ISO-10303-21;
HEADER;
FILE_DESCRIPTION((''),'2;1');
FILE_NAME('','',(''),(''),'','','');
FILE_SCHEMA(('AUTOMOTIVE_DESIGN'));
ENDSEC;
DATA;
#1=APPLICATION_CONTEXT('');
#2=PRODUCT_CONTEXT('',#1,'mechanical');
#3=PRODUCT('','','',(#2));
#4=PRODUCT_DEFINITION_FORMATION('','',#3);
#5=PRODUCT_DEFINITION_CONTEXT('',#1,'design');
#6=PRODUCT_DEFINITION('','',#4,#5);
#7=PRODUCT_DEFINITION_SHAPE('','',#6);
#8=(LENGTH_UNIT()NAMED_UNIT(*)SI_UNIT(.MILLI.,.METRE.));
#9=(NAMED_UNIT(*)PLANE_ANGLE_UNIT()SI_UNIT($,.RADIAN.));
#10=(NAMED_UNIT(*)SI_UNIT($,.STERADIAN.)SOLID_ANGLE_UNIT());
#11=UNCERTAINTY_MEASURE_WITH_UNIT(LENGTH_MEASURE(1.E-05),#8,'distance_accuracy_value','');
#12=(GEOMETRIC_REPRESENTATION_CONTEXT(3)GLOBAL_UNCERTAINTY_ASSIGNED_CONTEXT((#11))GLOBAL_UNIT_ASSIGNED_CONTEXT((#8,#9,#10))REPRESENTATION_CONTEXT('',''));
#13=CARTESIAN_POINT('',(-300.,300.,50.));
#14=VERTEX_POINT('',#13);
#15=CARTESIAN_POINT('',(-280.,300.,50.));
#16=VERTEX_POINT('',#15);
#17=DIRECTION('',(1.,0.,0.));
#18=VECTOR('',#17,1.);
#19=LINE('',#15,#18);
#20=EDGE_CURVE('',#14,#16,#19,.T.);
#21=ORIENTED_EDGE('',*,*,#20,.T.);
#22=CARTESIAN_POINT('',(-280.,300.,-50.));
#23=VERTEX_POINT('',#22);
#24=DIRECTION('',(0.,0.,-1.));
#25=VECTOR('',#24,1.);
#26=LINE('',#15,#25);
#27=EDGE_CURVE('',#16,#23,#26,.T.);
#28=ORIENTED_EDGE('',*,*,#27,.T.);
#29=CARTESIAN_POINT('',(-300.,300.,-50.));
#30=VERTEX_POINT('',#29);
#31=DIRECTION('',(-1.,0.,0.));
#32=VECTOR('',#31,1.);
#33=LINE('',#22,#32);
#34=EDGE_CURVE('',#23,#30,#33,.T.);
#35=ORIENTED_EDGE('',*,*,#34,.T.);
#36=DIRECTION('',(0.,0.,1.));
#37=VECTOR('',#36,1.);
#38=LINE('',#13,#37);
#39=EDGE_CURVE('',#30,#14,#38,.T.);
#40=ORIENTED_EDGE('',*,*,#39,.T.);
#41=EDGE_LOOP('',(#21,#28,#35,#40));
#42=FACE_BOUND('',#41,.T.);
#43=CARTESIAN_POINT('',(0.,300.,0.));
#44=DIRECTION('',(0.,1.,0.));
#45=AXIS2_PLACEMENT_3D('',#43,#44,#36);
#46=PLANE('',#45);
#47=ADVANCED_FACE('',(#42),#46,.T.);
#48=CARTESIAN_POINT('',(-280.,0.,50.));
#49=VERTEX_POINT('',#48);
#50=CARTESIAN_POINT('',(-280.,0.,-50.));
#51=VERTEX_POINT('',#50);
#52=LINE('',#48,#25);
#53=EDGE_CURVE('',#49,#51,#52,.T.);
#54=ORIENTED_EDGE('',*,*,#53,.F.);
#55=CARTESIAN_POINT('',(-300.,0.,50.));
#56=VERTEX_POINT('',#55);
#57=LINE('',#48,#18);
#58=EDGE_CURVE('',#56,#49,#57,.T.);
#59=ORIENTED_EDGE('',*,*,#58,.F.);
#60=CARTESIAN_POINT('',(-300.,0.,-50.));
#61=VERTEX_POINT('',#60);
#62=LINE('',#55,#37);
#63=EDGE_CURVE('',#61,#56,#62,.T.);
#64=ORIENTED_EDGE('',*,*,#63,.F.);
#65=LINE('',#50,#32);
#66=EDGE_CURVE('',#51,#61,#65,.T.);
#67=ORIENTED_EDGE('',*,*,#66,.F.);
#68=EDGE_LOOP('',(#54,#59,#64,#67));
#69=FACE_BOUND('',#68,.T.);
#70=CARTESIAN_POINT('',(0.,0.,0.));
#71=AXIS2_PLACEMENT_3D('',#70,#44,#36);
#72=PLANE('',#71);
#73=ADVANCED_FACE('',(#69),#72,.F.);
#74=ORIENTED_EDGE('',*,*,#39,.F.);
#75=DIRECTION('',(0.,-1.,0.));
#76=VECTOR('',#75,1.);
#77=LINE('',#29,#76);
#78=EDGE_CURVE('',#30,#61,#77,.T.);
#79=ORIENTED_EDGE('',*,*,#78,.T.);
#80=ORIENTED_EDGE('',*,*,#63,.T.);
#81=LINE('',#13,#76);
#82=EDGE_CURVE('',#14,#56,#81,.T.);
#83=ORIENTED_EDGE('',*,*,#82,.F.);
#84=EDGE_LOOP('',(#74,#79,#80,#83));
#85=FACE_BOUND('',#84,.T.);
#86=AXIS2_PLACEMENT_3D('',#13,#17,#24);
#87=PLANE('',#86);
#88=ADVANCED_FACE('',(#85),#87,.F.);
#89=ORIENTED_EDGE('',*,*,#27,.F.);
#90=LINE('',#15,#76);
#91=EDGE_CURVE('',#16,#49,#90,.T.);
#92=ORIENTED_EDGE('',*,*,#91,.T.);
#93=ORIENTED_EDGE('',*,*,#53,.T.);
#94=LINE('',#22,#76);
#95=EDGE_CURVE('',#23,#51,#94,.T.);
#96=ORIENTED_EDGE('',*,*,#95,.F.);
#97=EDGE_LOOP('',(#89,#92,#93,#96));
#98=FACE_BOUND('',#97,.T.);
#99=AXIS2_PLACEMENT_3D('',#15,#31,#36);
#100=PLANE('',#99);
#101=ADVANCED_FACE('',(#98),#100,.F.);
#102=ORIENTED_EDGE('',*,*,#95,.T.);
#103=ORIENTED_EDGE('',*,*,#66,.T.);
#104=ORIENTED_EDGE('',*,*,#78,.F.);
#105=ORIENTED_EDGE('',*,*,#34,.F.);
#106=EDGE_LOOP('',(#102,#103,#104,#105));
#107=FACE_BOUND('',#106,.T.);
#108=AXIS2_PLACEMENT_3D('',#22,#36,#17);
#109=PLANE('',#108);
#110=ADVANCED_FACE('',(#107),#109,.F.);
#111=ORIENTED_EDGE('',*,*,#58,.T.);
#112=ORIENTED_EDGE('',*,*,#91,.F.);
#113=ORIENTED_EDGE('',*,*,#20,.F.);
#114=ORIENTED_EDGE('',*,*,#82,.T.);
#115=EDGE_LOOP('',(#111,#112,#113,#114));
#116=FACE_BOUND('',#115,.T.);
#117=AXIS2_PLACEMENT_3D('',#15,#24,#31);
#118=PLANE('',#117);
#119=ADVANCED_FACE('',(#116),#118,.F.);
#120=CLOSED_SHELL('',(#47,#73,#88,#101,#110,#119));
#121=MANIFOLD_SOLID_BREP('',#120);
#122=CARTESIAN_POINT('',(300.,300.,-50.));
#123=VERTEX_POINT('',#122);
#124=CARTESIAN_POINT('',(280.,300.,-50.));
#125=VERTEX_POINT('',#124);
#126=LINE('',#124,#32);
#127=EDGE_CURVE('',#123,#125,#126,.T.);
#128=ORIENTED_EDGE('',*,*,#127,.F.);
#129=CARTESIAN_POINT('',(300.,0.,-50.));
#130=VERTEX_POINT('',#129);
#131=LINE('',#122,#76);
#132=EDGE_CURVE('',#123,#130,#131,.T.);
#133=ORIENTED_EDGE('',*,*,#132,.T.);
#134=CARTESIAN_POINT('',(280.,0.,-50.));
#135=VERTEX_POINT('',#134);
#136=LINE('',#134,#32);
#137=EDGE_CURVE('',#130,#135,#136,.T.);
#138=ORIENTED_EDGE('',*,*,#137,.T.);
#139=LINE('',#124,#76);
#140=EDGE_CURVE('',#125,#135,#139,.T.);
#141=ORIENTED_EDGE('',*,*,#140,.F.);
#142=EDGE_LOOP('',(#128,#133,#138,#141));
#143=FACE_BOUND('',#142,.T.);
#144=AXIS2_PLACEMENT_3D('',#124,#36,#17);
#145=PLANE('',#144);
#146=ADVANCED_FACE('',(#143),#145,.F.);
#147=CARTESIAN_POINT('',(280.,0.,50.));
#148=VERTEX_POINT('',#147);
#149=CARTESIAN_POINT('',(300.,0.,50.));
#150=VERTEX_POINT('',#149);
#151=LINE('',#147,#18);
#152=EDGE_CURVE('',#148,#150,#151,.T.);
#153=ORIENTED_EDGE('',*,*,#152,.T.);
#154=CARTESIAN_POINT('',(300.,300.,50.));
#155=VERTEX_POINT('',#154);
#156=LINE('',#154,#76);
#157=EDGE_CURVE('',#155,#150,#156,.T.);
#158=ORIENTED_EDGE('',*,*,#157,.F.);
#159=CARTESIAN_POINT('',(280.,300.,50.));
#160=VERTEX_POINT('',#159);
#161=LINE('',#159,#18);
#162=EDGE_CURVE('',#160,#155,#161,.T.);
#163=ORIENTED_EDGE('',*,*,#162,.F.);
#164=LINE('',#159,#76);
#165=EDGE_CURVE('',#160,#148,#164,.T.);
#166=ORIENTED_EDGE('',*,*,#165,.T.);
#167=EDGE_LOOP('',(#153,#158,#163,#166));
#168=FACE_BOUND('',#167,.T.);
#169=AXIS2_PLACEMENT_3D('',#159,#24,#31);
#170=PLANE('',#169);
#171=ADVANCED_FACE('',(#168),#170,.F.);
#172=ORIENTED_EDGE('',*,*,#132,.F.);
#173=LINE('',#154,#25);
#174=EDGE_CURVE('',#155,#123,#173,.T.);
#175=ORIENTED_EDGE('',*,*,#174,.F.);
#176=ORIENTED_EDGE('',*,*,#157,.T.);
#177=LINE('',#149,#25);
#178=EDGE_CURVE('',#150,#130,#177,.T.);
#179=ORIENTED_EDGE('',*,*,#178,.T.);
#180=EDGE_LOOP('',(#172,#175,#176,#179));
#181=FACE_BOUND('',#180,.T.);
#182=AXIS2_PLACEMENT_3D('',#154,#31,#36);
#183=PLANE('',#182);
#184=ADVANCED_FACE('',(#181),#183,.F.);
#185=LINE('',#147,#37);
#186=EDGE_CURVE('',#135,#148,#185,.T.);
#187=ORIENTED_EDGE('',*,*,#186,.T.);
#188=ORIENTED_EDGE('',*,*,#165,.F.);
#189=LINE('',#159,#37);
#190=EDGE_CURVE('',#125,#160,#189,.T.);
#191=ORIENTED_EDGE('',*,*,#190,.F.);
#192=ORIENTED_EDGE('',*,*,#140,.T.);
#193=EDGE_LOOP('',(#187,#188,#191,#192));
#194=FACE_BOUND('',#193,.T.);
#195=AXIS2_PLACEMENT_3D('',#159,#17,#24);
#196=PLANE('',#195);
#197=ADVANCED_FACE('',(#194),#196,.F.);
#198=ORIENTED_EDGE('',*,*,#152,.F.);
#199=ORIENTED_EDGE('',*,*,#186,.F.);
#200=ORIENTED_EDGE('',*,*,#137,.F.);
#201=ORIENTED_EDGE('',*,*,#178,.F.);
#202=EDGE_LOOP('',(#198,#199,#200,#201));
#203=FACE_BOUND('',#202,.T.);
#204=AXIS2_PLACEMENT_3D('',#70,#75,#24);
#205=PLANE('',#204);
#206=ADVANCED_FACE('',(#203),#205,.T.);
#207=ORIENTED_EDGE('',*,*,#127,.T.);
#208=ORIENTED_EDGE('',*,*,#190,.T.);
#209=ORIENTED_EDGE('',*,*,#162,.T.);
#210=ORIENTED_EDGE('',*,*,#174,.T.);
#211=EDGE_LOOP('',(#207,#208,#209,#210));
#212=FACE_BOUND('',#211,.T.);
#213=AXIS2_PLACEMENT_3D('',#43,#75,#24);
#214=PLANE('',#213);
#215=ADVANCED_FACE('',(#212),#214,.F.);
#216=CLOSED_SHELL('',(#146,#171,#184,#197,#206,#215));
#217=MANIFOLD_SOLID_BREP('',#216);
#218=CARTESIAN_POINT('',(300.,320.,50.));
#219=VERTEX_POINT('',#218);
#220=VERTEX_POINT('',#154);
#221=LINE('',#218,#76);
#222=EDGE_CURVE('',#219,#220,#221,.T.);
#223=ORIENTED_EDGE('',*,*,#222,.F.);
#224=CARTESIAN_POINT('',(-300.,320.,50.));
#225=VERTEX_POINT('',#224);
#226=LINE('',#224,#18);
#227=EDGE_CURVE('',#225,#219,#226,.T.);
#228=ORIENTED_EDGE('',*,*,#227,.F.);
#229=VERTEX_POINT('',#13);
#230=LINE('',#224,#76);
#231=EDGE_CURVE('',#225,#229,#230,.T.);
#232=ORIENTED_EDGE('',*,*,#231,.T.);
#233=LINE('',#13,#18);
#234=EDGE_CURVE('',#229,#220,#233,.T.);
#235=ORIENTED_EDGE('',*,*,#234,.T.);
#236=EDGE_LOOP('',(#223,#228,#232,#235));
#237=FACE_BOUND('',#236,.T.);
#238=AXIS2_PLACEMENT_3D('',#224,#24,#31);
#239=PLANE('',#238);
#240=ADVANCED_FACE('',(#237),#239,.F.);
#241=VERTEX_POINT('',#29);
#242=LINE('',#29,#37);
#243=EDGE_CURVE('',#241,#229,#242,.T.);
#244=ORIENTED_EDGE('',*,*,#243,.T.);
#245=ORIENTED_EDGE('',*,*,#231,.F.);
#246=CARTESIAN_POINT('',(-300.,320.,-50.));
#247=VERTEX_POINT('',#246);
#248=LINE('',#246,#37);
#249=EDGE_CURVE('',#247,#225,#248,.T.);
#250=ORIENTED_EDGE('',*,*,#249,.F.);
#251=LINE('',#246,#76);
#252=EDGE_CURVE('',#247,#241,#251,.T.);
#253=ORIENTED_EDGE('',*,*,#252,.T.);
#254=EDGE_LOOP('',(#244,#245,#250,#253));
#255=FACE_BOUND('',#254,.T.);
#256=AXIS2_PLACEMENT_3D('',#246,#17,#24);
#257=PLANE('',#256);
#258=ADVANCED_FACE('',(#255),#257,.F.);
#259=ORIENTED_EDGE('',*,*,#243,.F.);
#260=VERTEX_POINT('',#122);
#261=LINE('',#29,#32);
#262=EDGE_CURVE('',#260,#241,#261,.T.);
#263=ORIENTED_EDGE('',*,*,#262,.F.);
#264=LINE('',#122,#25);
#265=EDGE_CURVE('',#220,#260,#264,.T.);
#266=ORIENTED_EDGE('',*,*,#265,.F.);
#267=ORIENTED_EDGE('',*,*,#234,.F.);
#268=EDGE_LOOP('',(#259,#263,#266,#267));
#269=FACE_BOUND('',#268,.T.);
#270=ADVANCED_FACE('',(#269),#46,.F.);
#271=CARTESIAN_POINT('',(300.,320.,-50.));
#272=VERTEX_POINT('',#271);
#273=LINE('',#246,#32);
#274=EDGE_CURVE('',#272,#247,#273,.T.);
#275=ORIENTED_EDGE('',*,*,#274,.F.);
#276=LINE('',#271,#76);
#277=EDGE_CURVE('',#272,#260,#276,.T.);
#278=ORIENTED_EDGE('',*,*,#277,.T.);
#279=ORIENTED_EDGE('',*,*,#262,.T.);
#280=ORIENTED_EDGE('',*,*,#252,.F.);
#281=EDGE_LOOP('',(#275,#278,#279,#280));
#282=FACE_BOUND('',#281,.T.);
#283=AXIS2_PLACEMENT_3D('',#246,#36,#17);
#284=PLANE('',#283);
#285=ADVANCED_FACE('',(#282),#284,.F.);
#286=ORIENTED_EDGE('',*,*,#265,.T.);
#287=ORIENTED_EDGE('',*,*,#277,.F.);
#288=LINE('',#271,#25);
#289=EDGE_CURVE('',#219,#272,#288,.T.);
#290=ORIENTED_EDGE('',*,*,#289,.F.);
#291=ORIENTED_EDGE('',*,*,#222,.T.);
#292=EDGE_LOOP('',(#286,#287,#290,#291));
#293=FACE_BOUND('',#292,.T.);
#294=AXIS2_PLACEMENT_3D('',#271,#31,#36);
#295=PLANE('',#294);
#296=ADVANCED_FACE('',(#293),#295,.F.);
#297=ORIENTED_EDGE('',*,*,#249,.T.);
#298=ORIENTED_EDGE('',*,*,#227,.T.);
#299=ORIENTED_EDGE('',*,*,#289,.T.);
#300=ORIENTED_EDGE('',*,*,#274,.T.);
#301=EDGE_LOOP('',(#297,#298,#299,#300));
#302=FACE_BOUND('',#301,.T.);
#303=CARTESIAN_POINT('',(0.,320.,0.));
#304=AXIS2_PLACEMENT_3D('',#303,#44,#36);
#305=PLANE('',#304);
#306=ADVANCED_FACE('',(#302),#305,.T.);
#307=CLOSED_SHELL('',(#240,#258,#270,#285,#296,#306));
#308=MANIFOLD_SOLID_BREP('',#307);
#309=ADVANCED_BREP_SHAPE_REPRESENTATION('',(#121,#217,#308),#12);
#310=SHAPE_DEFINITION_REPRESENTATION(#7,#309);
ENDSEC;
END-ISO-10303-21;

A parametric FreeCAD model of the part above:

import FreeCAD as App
import Part
import Sketcher

V = App.Vector

doc = App.newDocument("Part")
body = doc.addObject("PartDesign::Body", "Body")

sketch1 = doc.addObject("Sketcher::SketchObject", "Sketch")
body.addObject(sketch1)
sketch1.AttachmentSupport = (doc.XZ_Plane, [""])
sketch1.MapMode = "FlatFace"
sketch1.addGeometry([
    Part.LineSegment(V(-300, -50, 0), V(-300, 50, 0)),
    Part.LineSegment(V(-300, 50, 0), V(-280, 50, 0)),
    Part.LineSegment(V(-280, 50, 0), V(-280, -50, 0)),
    Part.LineSegment(V(-280, -50, 0), V(-300, -50, 0)),
], False)
sketch1.addConstraint([
    Sketcher.Constraint("Coincident", 0, 2, 1, 1),
    Sketcher.Constraint("Coincident", 1, 2, 2, 1),
    Sketcher.Constraint("Coincident", 2, 2, 3, 1),
    Sketcher.Constraint("Coincident", 3, 2, 0, 1),
    Sketcher.Constraint("Vertical", 0),
    Sketcher.Constraint("Horizontal", 1),
    Sketcher.Constraint("Vertical", 2),
    Sketcher.Constraint("Horizontal", 3),
    Sketcher.Constraint("DistanceX", 1, 1, 1, 2, 20.0),
    Sketcher.Constraint("DistanceY", 0, 1, 0, 2, 100.0),
    Sketcher.Constraint("DistanceX", 0, 2, -1, 1, 300.0),
    Sketcher.Constraint("DistanceY", -1, 1, 0, 2, 50.0),
])
pad1 = doc.addObject("PartDesign::Pad", "Pad")
body.addObject(pad1)
pad1.Profile = sketch1
pad1.Length = 300
pad1.Reversed = True
body2 = doc.addObject("PartDesign::Body", "Body001")

sketch2 = doc.addObject("Sketcher::SketchObject", "Sketch001")
body2.addObject(sketch2)
sketch2.AttachmentSupport = (doc.getObject("XZ_Plane001"), [""])
sketch2.MapMode = "FlatFace"
sketch2.addGeometry([
    Part.LineSegment(V(280, -50, 0), V(280, 50, 0)),
    Part.LineSegment(V(280, 50, 0), V(300, 50, 0)),
    Part.LineSegment(V(300, 50, 0), V(300, -50, 0)),
    Part.LineSegment(V(300, -50, 0), V(280, -50, 0)),
], False)
sketch2.addConstraint([
    Sketcher.Constraint("Coincident", 0, 2, 1, 1),
    Sketcher.Constraint("Coincident", 1, 2, 2, 1),
    Sketcher.Constraint("Coincident", 2, 2, 3, 1),
    Sketcher.Constraint("Coincident", 3, 2, 0, 1),
    Sketcher.Constraint("Vertical", 0),
    Sketcher.Constraint("Horizontal", 1),
    Sketcher.Constraint("Vertical", 2),
    Sketcher.Constraint("Horizontal", 3),
    Sketcher.Constraint("DistanceX", 1, 1, 1, 2, 20.0),
    Sketcher.Constraint("DistanceY", 0, 1, 0, 2, 100.0),
    Sketcher.Constraint("DistanceX", -1, 1, 0, 2, 280.0),
    Sketcher.Constraint("DistanceY", -1, 1, 0, 2, 50.0),
])
pad2 = doc.addObject("PartDesign::Pad", "Pad001")
body2.addObject(pad2)
pad2.Profile = sketch2
pad2.Length = 300
pad2.Reversed = True
body3 = doc.addObject("PartDesign::Body", "Body002")

sketch3 = doc.addObject("Sketcher::SketchObject", "Sketch002")
body3.addObject(sketch3)
sketch3.AttachmentSupport = (doc.getObject("XZ_Plane002"), [""])
sketch3.MapMode = "FlatFace"
sketch3.AttachmentOffset = App.Placement(V(0, 0, -300), App.Rotation())
sketch3.addGeometry([
    Part.LineSegment(V(-300, -50, 0), V(-300, 50, 0)),
    Part.LineSegment(V(-300, 50, 0), V(300, 50, 0)),
    Part.LineSegment(V(300, 50, 0), V(300, -50, 0)),
    Part.LineSegment(V(300, -50, 0), V(-300, -50, 0)),
], False)
sketch3.addConstraint([
    Sketcher.Constraint("Coincident", 0, 2, 1, 1),
    Sketcher.Constraint("Coincident", 1, 2, 2, 1),
    Sketcher.Constraint("Coincident", 2, 2, 3, 1),
    Sketcher.Constraint("Coincident", 3, 2, 0, 1),
    Sketcher.Constraint("Vertical", 0),
    Sketcher.Constraint("Horizontal", 1),
    Sketcher.Constraint("Vertical", 2),
    Sketcher.Constraint("Horizontal", 3),
    Sketcher.Constraint("Symmetric", 0, 2, 2, 2, -1, 1),
    Sketcher.Constraint("DistanceX", 1, 1, 1, 2, 600.0),
    Sketcher.Constraint("DistanceY", 0, 1, 0, 2, 100.0),
])
pad3 = doc.addObject("PartDesign::Pad", "Pad002")
body3.addObject(pad3)
pad3.Profile = sketch3
pad3.Length = 20
pad3.Reversed = True

doc.recompute()
